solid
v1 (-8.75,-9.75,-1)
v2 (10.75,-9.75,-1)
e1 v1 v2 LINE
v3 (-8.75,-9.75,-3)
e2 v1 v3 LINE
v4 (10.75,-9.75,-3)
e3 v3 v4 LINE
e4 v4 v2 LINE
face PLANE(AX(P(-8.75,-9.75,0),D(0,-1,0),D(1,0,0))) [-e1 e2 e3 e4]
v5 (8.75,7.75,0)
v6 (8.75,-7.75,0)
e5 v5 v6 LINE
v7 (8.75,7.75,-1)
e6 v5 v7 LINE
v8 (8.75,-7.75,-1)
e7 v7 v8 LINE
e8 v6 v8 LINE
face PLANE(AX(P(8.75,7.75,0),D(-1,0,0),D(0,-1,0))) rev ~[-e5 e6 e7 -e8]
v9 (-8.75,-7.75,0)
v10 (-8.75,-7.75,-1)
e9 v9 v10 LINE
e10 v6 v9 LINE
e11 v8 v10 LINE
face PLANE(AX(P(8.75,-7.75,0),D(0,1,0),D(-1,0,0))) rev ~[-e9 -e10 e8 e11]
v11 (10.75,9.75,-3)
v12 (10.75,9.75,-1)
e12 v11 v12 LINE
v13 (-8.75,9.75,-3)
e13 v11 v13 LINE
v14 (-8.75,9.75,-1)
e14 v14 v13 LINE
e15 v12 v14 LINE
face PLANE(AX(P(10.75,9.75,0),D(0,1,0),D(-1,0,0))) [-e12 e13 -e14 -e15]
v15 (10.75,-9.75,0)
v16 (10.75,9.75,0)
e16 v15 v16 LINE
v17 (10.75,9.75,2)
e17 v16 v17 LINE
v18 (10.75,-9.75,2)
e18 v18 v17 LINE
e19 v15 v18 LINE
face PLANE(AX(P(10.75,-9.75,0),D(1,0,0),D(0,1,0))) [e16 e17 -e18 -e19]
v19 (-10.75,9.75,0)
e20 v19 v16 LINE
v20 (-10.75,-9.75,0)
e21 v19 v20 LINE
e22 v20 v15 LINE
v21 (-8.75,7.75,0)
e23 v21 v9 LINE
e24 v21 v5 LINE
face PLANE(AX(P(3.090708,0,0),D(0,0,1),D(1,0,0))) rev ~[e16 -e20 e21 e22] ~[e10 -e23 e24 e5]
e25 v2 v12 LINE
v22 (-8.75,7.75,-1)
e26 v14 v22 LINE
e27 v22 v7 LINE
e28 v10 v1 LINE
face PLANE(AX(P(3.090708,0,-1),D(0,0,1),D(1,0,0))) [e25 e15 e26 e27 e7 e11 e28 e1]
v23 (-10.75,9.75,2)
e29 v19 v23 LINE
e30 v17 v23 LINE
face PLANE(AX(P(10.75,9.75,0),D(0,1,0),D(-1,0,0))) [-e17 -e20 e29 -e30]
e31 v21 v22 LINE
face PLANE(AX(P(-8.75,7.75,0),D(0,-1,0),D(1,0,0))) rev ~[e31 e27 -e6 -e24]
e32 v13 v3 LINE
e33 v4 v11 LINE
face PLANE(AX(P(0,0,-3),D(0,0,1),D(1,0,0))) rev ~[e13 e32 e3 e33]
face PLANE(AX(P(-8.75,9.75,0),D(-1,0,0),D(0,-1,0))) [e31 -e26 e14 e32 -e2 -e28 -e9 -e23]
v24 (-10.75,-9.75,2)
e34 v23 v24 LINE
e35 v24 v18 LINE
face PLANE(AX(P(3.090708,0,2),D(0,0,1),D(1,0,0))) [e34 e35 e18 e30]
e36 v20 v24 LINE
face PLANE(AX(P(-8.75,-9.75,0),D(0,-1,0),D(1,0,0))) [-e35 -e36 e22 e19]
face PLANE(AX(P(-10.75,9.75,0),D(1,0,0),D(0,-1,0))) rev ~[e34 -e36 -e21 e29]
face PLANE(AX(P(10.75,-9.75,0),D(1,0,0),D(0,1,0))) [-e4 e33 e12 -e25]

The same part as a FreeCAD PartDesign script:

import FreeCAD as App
import Part
import Sketcher

V = App.Vector

doc = App.newDocument("Part")
body = doc.addObject("PartDesign::Body", "Body")

# Sketch on XY plane
sketch1 = body.newObject("Sketcher::SketchObject", "Sketch")
sketch1.AttachmentSupport = (doc.getObject("XY_Plane"), [""])
sketch1.MapMode = "FlatFace"
sketch1.addGeometry([
    Part.LineSegment(V(11, -10, 0), V(11, 10, 0)),
    Part.LineSegment(V(11, 10, 0), V(-11, 10, 0)),
    Part.LineSegment(V(-11, 10, 0), V(-11, -10, 0)),
    Part.LineSegment(V(-11, -10, 0), V(11, -10, 0)),
], False)
sketch1.addConstraint([
    Sketcher.Constraint("Coincident", 0, 2, 1, 1),
    Sketcher.Constraint("Coincident", 1, 2, 2, 1),
    Sketcher.Constraint("Coincident", 2, 2, 3, 1),
    Sketcher.Constraint("Coincident", 3, 2, 0, 1),
    Sketcher.Constraint("Vertical", 0),
    Sketcher.Constraint("Horizontal", 1),
    Sketcher.Constraint("Vertical", 2),
    Sketcher.Constraint("Horizontal", 3),
    Sketcher.Constraint("Symmetric", 0, 2, 2, 2, -1, 1),
    Sketcher.Constraint("DistanceX", 1, 2, 1, 1, 21.5),
    Sketcher.Constraint("DistanceY", 0, 1, 0, 2, 19.5),
])
pad1 = body.newObject("PartDesign::Pad", "Pad")
pad1.Profile = sketch1
pad1.Length = 2

# Sketch on XY plane
sketch2 = body.newObject("Sketcher::SketchObject", "Sketch001")
sketch2.AttachmentSupport = (doc.getObject("XY_Plane"), [""])
sketch2.MapMode = "FlatFace"
sketch2.addGeometry([
    Part.LineSegment(V(-9, -10, 0), V(11, -10, 0)),
    Part.LineSegment(V(11, -10, 0), V(11, 10, 0)),
    Part.LineSegment(V(11, 10, 0), V(-9, 10, 0)),
    Part.LineSegment(V(-9, 10, 0), V(-9, -10, 0)),
], False)
sketch2.addConstraint([
    Sketcher.Constraint("Coincident", 0, 2, 1, 1),
    Sketcher.Constraint("Coincident", 1, 2, 2, 1),
    Sketcher.Constraint("Coincident", 2, 2, 3, 1),
    Sketcher.Constraint("Coincident", 3, 2, 0, 1),
    Sketcher.Constraint("Horizontal", 0),
    Sketcher.Constraint("Vertical", 1),
    Sketcher.Constraint("Horizontal", 2),
    Sketcher.Constraint("Vertical", 3),
    Sketcher.Constraint("Equal", 2, 1),
    Sketcher.Constraint("DistanceX", 0, 1, 0, 2, 19.5),
    Sketcher.Constraint("DistanceX", -1, 1, 0, 2, 10.75),
    Sketcher.Constraint("DistanceY", 0, 2, -1, 1, 9.75),
])
pad2 = body.newObject("PartDesign::Pad", "Pad001")
pad2.Profile = sketch2
pad2.Length = 3
pad2.Reversed = True

# Sketch on XY plane
sketch3 = body.newObject("Sketcher::SketchObject", "Sketch002")
sketch3.AttachmentSupport = (doc.getObject("XY_Plane"), [""])
sketch3.MapMode = "FlatFace"
sketch3.addGeometry([
    Part.LineSegment(V(-8.8, -7.8, 0), V(-8.8, -9.8, 0)),  # 0
    Part.LineSegment(V(-8.8, -9.8, 0), V(10.8, -9.8, 0)),  # 1
    Part.LineSegment(V(10.8, -9.8, 0), V(10.8, 9.8, 0)),  # 2
    Part.LineSegment(V(10.8, 9.8, 0), V(-8.8, 9.8, 0)),  # 3
    Part.LineSegment(V(-8.8, 9.8, 0), V(-8.8, 7.8, 0)),  # 4
    Part.LineSegment(V(-8.8, 7.8, 0), V(8.8, 7.8, 0)),  # 5
    Part.LineSegment(V(8.8, 7.8, 0), V(8.8, -7.8, 0)),  # 6
    Part.LineSegment(V(8.8, -7.8, 0), V(-8.8, -7.8, 0)),  # 7
], False)
sketch3.addConstraint([
    Sketcher.Constraint("Coincident", 0, 2, 1, 1),
    Sketcher.Constraint("Coincident", 1, 2, 2, 1),
    Sketcher.Constraint("Coincident", 2, 2, 3, 1),
    Sketcher.Constraint("Coincident", 3, 2, 4, 1),
    Sketcher.Constraint("Coincident", 4, 2, 5, 1),
    Sketcher.Constraint("Coincident", 5, 2, 6, 1),
    Sketcher.Constraint("Coincident", 6, 2, 7, 1),
    Sketcher.Constraint("Coincident", 7, 2, 0, 1),
    Sketcher.Constraint("Vertical", 0),
    Sketcher.Constraint("Horizontal", 1),
    Sketcher.Constraint("Vertical", 2),
    Sketcher.Constraint("Horizontal", 3),
    Sketcher.Constraint("Vertical", 4),
    Sketcher.Constraint("Horizontal", 5),
    Sketcher.Constraint("Vertical", 6),
    Sketcher.Constraint("Horizontal", 7),
    Sketcher.Constraint("Symmetric", 4, 2, 6, 2, -1, 1),
    Sketcher.Constraint("Symmetric", 0, 2, 3, 2, -1),
    Sketcher.Constraint("Equal", 3, 2),
    Sketcher.Constraint("DistanceY", 0, 2, 0, 1, 2.0),
    Sketcher.Constraint("DistanceX", 1, 1, 1, 2, 19.5),
    Sketcher.Constraint("DistanceX", 5, 1, 5, 2, 17.5),
])
pocket1 = body.newObject("PartDesign::Pocket", "Pocket")
pocket1.Profile = sketch3
pocket1.Length = 1

doc.recompute()
